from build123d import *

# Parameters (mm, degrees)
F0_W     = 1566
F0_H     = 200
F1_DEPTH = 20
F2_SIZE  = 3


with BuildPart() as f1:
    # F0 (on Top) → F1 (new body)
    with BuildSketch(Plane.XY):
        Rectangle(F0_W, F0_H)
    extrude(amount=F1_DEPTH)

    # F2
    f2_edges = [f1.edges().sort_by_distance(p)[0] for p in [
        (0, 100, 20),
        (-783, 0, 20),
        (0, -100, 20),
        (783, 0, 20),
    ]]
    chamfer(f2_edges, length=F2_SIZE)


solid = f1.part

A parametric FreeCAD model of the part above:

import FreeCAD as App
import Part
import Sketcher
from FreeCAD import Vector


def edges_at(feature, points):
    """Names of the edges that pass closest to the given points."""
    edges = feature.Shape.Edges
    near = lambda p: min(range(len(edges)), key=lambda i: edges[i].distToShape(Part.Vertex(*p))[0])
    return sorted({f"Edge{near(p) + 1}" for p in points})

doc = App.newDocument("Part")
params = doc.addObject("Spreadsheet::Sheet", "Params")
for row, (alias, value) in enumerate([
    ("sketch1_width", "1566 mm"),
    ("sketch1_height", "200 mm"),
    ("pad1_length", "20 mm"),
    ("chamfer_size", "3 mm"),
], start=1):
    params.set(f"A{row}", alias)
    params.set(f"B{row}", "=" + value)
    params.setAlias(f"B{row}", alias)

body = doc.addObject("PartDesign::Body", "Body")

sketch1 = doc.addObject("Sketcher::SketchObject", "Sketch")
body.addObject(sketch1)
sketch1.AttachmentSupport = (doc.XY_Plane, [""])
sketch1.MapMode = "FlatFace"
sketch1.addGeometry(Part.LineSegment(Vector(-783, 100, 0), Vector(-783, -100, 0)), False)
sketch1.addGeometry(Part.LineSegment(Vector(-783, -100, 0), Vector(783, -100, 0)), False)
sketch1.addGeometry(Part.LineSegment(Vector(783, -100, 0), Vector(783, 100, 0)), False)
sketch1.addGeometry(Part.LineSegment(Vector(783, 100, 0), Vector(-783, 100, 0)), False)
sketch1.addConstraint(Sketcher.Constraint("Coincident", 0, 2, 1, 1))
sketch1.addConstraint(Sketcher.Constraint("Coincident", 1, 2, 2, 1))
sketch1.addConstraint(Sketcher.Constraint("Coincident", 2, 2, 3, 1))
sketch1.addConstraint(Sketcher.Constraint("Coincident", 3, 2, 0, 1))
sketch1.addConstraint(Sketcher.Constraint("Vertical", 0))
sketch1.addConstraint(Sketcher.Constraint("Horizontal", 1))
sketch1.addConstraint(Sketcher.Constraint("Vertical", 2))
sketch1.addConstraint(Sketcher.Constraint("Horizontal", 3))
sketch1.addConstraint(Sketcher.Constraint("Symmetric", 0, 2, 2, 2, -1, 1))
sketch1.addConstraint(Sketcher.Constraint("DistanceX", 1, 1, 1, 2, 1566.0))
sketch1.addConstraint(Sketcher.Constraint("DistanceY", 0, 2, 0, 1, 200.0))
sketch1.setExpression("Constraints[9]", "Params.sketch1_width")
sketch1.setExpression("Constraints[10]", "Params.sketch1_height")
pad1 = doc.addObject("PartDesign::Pad", "Pad")
body.addObject(pad1)
pad1.Profile = sketch1
pad1.setExpression("Length", "Params.pad1_length")
doc.recompute()

chamfer = doc.addObject("PartDesign::Chamfer", "Chamfer")
body.addObject(chamfer)
chamfer.Base = (pad1, edges_at(pad1, [
    (0, 100, 20),
    (-783, 0, 20),
    (0, -100, 20),
    (783, 0, 20),
]))
chamfer.setExpression("Size", "Params.chamfer_size")

doc.recompute()
